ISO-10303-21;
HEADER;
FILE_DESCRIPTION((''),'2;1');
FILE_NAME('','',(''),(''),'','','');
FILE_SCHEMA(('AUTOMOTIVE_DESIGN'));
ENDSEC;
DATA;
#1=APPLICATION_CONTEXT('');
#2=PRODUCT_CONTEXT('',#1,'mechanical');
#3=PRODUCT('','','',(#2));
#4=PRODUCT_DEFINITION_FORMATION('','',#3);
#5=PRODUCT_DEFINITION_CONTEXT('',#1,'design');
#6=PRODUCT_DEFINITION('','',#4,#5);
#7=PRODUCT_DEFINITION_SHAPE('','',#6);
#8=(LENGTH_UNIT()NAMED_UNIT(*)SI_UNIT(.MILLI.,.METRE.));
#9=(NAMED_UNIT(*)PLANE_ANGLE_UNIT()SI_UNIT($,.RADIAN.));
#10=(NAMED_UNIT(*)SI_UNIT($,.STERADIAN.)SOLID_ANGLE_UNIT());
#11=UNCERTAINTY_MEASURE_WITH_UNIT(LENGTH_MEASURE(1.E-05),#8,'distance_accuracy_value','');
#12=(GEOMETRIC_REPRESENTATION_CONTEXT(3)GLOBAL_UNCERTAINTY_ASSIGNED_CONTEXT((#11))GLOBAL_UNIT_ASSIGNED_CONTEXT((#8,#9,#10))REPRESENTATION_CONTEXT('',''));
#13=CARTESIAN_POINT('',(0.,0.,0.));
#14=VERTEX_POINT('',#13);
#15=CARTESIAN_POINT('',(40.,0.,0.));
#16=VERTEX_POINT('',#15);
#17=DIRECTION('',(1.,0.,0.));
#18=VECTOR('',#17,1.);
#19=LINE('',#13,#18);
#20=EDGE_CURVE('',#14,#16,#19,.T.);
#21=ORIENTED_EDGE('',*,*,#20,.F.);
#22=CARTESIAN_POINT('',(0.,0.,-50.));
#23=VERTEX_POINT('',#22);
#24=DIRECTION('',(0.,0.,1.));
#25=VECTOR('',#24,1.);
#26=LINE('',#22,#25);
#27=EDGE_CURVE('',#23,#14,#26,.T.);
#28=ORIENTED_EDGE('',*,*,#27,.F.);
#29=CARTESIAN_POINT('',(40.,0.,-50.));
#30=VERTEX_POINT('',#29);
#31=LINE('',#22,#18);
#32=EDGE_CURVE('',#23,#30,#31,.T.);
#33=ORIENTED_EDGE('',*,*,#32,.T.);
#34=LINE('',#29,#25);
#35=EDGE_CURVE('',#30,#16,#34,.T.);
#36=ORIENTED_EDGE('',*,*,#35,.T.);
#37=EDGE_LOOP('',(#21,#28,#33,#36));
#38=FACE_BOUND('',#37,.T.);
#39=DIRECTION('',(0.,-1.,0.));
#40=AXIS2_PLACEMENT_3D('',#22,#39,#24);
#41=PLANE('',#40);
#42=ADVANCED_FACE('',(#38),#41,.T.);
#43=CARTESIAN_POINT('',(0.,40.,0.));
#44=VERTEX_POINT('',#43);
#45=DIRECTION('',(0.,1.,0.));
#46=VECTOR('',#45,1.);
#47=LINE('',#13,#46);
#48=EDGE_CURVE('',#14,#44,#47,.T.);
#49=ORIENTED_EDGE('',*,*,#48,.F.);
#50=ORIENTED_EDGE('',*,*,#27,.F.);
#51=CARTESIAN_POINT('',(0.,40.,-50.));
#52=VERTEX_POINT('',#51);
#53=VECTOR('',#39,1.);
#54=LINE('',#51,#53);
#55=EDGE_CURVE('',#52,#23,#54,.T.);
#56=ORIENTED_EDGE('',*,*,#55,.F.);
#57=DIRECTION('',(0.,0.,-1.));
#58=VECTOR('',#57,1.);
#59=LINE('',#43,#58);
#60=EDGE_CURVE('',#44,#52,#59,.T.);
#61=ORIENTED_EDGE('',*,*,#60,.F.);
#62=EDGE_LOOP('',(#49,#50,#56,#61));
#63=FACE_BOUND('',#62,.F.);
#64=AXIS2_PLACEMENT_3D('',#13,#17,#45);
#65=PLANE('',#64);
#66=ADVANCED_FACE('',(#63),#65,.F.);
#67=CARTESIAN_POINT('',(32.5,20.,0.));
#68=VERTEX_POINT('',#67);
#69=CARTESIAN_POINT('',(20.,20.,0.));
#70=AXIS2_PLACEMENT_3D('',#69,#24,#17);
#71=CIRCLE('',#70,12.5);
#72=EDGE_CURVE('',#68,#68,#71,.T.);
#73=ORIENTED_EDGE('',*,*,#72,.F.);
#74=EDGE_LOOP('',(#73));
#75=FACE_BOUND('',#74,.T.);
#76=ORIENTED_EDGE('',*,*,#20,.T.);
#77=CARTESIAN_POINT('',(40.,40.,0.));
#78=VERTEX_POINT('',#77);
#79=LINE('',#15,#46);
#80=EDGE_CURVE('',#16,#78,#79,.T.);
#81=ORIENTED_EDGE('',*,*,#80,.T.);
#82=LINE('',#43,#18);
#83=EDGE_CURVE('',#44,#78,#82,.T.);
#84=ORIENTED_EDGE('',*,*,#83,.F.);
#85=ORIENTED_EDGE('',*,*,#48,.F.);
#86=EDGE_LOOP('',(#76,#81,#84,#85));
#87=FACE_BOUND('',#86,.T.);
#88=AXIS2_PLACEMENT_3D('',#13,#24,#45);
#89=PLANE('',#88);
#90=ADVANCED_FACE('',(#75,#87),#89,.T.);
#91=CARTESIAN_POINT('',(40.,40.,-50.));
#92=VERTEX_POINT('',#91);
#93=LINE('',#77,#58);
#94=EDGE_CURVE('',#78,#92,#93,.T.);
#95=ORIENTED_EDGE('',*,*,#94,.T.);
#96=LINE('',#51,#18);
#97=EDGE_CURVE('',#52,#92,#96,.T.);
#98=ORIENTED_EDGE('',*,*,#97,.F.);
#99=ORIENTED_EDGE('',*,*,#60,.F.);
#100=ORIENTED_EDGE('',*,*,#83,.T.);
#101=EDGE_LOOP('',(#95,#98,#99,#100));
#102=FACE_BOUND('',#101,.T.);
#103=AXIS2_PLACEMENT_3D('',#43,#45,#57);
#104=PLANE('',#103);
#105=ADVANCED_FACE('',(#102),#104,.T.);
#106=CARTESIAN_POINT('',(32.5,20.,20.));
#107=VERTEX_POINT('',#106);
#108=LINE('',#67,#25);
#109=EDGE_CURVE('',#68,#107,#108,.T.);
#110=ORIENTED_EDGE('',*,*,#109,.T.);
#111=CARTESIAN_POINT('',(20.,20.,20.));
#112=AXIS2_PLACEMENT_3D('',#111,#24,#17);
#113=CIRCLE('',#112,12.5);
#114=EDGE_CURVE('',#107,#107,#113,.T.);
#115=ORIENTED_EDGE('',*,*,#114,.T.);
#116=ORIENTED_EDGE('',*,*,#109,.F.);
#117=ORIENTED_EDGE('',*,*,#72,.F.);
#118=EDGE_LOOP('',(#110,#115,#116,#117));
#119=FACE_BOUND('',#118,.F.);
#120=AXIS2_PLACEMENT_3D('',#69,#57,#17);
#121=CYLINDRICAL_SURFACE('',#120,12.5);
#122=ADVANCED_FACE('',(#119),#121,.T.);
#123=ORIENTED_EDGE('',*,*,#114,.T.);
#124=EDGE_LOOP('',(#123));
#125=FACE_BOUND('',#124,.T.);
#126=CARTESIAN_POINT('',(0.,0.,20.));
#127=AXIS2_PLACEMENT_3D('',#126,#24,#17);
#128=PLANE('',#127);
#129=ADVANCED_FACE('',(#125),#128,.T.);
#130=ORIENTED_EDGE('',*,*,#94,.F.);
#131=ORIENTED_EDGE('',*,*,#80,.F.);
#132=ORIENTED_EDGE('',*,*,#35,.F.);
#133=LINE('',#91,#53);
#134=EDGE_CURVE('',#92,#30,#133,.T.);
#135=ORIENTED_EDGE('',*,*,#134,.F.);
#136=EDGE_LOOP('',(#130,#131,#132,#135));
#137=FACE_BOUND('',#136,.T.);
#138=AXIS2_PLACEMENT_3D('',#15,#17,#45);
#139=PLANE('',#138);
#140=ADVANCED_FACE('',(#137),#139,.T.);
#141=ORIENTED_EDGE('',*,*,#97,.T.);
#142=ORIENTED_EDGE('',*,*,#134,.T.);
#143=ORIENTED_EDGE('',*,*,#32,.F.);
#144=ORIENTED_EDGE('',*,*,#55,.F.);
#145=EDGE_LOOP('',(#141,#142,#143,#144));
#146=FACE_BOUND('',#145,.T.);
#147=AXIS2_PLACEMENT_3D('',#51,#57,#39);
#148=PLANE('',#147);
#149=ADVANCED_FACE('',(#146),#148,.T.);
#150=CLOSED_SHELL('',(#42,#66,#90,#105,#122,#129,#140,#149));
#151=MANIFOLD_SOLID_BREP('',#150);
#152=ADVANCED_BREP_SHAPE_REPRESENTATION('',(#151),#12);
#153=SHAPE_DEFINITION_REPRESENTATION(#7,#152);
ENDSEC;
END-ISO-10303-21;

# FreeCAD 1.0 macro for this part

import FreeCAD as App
import Part
import Sketcher

doc = App.newDocument("Part")
body = doc.addObject("PartDesign::Body", "Body")

# Sketch on YZ plane
sketch1 = body.newObject("Sketcher::SketchObject", "Sketch")
sketch1.AttachmentSupport = (doc.getObject("YZ_Plane"), [""])
sketch1.MapMode = "FlatFace"
sketch1.addGeometry([
    Part.LineSegment(App.Vector(40, 0, 0), App.Vector(0, 0, 0)),
    Part.LineSegment(App.Vector(0, 0, 0), App.Vector(0, -50, 0)),
    Part.LineSegment(App.Vector(0, -50, 0), App.Vector(40, -50, 0)),
    Part.LineSegment(App.Vector(40, -50, 0), App.Vector(40, 0, 0)),
], False)
sketch1.addConstraint([
    Sketcher.Constraint("Coincident", 0, 2, 1, 1),
    Sketcher.Constraint("Coincident", 1, 2, 2, 1),
    Sketcher.Constraint("Coincident", 2, 2, 3, 1),
    Sketcher.Constraint("Coincident", 3, 2, 0, 1),
    Sketcher.Constraint("Horizontal", 0),
    Sketcher.Constraint("Vertical", 1),
    Sketcher.Constraint("Horizontal", 2),
    Sketcher.Constraint("Vertical", 3),
    Sketcher.Constraint("Coincident", 0, 2, -1, 1),
    Sketcher.Constraint("DistanceX", 0, 2, 0, 1, 40.0),
    Sketcher.Constraint("DistanceY", 1, 2, 1, 1, 50.0),
])
pad1 = body.newObject("PartDesign::Pad", "Pad")
pad1.Profile = sketch1
pad1.Length = 40

# Sketch on XY plane
sketch2 = body.newObject("Sketcher::SketchObject", "Sketch001")
sketch2.AttachmentSupport = (doc.getObject("XY_Plane"), [""])
sketch2.MapMode = "FlatFace"
sketch2.addGeometry(Part.Circle(App.Vector(20, 20, 0), App.Vector(0, 0, 1), 12), False)
sketch2.addConstraint([
    Sketcher.Constraint("Diameter", 0, 25.0),
    Sketcher.Constraint("DistanceX", -1, 1, 0, 3, 20.0),
    Sketcher.Constraint("DistanceY", -1, 1, 0, 3, 20.0),
])
pad2 = body.newObject("PartDesign::Pad", "Pad001")
pad2.Profile = sketch2
pad2.Length = 20

doc.recompute()
